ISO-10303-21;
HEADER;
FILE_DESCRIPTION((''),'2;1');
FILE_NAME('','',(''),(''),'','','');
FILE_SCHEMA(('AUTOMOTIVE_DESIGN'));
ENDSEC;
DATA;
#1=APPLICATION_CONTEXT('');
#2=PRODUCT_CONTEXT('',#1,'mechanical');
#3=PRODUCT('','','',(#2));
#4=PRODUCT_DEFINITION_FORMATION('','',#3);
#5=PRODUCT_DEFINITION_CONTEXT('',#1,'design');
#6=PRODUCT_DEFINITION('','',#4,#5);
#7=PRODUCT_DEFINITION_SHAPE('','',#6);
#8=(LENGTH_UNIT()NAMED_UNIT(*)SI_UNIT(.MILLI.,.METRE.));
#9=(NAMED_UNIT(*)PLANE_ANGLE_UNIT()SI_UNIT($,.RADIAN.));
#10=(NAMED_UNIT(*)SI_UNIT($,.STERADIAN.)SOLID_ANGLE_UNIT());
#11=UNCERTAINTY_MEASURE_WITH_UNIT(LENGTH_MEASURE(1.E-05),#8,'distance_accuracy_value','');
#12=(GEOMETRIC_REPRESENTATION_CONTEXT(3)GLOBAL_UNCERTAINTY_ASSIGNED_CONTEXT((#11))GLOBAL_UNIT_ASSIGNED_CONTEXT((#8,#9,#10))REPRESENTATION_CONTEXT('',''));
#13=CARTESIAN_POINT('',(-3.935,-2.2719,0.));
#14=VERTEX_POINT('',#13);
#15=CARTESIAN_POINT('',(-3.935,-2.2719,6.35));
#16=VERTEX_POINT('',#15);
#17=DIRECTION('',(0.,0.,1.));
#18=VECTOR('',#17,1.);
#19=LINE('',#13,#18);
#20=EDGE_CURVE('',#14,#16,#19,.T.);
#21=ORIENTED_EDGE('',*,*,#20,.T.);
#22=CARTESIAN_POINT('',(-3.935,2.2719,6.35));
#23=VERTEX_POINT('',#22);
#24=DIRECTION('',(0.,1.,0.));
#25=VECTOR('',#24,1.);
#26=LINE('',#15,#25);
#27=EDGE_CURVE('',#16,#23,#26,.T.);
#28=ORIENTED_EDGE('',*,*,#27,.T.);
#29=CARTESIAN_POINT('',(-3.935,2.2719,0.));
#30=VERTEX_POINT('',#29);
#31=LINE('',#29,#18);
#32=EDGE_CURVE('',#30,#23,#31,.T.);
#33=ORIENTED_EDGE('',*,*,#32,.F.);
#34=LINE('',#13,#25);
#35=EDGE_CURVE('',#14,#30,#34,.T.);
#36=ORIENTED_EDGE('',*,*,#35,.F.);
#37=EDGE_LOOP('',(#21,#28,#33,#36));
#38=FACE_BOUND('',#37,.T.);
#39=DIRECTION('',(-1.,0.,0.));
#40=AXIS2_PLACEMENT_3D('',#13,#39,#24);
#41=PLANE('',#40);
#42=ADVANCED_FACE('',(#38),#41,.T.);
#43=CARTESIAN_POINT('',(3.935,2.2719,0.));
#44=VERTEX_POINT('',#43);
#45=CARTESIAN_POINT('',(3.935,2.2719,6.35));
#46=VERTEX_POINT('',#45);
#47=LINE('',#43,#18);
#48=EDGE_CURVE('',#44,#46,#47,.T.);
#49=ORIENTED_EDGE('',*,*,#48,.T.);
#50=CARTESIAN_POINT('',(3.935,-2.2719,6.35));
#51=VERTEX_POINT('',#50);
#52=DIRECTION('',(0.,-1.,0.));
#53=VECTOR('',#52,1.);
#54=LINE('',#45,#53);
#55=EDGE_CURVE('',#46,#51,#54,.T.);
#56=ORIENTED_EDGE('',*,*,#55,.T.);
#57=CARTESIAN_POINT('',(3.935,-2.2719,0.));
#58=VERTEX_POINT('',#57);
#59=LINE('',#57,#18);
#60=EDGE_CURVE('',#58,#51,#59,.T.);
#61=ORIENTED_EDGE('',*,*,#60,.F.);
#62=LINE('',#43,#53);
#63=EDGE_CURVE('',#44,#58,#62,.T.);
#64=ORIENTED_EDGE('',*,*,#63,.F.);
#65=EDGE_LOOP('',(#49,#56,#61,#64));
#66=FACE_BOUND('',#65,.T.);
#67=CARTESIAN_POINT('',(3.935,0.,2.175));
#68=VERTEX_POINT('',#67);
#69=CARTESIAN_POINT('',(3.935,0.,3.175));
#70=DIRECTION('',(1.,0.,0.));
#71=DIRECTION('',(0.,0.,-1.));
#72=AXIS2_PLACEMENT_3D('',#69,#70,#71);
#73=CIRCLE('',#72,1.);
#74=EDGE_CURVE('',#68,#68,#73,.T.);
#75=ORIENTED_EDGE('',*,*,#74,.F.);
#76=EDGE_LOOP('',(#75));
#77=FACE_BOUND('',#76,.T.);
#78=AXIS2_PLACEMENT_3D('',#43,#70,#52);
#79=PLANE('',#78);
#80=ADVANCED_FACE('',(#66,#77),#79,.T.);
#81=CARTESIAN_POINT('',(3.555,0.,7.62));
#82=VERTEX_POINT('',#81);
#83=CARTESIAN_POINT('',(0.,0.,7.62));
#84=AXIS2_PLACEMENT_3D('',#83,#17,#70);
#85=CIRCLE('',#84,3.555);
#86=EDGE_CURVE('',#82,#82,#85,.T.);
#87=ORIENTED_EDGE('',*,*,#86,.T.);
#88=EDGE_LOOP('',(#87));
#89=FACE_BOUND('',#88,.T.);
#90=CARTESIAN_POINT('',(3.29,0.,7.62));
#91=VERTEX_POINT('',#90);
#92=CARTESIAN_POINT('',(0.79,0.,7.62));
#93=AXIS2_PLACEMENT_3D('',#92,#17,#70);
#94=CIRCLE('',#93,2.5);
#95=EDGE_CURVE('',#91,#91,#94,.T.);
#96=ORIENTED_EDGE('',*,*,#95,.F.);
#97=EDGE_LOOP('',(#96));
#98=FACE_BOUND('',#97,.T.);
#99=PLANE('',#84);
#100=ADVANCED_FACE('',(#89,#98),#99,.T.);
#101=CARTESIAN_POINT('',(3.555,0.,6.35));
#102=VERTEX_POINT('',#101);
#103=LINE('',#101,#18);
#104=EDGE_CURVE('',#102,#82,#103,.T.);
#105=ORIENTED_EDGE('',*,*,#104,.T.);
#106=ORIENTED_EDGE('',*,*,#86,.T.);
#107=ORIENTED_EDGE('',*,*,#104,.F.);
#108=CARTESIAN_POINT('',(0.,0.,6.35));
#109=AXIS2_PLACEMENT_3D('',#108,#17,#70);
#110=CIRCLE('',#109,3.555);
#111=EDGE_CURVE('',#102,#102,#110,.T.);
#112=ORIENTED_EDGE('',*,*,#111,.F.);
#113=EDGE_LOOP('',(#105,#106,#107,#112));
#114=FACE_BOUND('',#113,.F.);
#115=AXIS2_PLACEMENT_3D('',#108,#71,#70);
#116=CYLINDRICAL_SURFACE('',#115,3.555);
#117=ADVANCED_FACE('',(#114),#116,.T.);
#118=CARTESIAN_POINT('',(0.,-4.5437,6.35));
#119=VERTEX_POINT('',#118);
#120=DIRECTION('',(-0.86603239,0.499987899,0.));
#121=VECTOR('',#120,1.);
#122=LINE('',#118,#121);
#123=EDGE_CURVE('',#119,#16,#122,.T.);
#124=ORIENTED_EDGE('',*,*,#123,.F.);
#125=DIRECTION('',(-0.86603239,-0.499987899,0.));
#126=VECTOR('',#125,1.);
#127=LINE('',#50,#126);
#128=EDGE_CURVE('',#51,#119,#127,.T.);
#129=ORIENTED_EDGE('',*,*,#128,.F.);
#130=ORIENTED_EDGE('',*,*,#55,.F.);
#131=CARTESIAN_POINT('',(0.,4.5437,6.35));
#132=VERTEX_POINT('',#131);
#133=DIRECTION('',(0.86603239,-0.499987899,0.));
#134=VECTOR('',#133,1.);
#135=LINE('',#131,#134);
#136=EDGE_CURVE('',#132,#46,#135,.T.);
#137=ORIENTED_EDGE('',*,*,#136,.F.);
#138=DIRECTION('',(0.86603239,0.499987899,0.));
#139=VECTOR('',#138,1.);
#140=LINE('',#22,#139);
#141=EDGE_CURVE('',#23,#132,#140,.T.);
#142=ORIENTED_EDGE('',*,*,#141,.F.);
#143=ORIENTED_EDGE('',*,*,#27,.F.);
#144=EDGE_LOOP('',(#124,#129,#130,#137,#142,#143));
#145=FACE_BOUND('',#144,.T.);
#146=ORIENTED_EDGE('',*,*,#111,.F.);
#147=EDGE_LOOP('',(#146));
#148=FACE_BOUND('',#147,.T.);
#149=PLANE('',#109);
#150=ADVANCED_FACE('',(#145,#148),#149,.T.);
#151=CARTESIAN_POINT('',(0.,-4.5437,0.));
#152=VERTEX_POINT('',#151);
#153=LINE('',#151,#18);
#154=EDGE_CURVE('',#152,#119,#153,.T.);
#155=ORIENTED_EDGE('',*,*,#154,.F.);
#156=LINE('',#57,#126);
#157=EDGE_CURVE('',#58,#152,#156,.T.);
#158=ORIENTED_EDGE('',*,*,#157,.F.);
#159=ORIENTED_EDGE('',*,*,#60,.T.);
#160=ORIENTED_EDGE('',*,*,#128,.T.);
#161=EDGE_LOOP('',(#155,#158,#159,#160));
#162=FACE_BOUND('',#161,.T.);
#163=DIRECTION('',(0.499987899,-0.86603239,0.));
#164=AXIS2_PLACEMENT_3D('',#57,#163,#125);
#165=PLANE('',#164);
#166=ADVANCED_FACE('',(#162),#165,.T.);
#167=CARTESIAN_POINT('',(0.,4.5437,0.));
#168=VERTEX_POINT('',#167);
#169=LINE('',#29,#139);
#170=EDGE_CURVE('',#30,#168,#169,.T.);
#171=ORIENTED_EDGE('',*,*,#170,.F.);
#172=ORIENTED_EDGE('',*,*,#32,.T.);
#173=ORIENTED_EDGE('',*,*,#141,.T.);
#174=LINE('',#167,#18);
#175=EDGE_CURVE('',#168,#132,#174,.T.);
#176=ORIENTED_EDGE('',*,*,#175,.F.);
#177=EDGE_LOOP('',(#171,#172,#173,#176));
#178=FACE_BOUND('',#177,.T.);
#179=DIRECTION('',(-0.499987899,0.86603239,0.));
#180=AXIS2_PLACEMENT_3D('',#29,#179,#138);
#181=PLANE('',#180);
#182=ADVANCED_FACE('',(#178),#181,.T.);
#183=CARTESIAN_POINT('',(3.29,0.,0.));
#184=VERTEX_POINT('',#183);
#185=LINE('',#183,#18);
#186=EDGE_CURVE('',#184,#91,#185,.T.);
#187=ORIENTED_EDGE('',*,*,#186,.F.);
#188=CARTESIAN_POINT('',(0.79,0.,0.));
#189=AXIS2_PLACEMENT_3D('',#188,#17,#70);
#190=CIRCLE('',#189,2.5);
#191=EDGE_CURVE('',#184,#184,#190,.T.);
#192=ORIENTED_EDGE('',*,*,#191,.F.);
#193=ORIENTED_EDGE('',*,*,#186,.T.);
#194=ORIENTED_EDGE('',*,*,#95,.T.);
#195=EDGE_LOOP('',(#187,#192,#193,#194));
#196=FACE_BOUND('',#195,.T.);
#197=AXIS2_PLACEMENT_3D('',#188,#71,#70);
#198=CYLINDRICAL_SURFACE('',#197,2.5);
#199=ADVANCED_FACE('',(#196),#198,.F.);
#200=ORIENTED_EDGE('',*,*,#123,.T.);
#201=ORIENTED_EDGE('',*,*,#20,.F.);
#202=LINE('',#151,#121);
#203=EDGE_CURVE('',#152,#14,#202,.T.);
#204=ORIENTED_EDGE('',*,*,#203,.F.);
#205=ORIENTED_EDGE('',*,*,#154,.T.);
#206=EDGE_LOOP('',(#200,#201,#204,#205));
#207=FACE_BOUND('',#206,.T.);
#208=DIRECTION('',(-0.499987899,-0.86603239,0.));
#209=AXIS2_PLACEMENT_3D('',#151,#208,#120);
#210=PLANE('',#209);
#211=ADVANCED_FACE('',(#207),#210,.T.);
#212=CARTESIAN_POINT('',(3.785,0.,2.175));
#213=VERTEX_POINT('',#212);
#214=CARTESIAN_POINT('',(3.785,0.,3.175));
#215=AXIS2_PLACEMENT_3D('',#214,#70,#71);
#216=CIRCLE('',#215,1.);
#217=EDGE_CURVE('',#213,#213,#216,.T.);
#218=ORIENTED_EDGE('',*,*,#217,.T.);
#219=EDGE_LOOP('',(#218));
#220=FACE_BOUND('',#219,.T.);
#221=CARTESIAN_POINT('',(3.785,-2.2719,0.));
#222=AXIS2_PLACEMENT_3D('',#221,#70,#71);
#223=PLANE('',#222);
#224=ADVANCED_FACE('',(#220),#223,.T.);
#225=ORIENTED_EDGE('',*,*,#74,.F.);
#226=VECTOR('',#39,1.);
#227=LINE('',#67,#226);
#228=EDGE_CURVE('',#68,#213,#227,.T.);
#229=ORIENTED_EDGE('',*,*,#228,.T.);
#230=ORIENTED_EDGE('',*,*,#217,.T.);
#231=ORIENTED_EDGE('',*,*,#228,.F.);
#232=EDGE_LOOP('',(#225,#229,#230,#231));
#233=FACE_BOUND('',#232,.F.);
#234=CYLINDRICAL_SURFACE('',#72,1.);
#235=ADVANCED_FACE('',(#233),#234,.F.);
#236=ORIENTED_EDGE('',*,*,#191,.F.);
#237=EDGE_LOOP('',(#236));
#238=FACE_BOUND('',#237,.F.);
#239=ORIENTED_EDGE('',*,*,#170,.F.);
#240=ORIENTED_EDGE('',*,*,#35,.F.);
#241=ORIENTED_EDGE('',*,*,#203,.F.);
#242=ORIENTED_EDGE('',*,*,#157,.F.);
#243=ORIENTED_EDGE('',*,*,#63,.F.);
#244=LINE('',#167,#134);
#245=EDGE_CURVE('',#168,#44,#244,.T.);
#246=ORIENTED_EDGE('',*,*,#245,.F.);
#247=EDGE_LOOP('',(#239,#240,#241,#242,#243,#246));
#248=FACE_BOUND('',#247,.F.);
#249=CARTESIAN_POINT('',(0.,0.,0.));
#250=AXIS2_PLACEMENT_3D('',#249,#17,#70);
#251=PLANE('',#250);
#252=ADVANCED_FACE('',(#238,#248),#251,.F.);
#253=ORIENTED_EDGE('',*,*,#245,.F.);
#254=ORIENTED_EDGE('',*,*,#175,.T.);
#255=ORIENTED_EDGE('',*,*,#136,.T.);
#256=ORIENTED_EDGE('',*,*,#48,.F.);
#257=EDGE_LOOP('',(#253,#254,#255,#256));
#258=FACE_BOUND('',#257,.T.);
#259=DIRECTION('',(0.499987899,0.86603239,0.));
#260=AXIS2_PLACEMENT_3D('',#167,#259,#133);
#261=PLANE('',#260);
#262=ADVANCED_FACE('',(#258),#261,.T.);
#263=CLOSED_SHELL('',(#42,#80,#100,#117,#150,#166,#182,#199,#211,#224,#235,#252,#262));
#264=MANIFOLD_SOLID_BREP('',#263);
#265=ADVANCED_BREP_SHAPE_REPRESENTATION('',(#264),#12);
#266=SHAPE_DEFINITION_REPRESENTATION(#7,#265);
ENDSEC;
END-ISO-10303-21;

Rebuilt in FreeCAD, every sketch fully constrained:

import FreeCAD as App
import Part
import Sketcher
from FreeCAD import Vector
Q = App.Units.Quantity


def add_polygon(sketch, points):
    """Adds a closed chain of lines whose ends are joined by coincident constraints."""
    first, n = sketch.GeometryCount, len(points)
    for a, b in zip(points, points[1:] + points[:1]):
        sketch.addGeometry(Part.LineSegment(App.Vector(*a, 0), App.Vector(*b, 0)), False)
    for i in range(n):
        sketch.addConstraint(Sketcher.Constraint("Coincident", first + i, 2, first + (i + 1) % n, 1))

doc = App.newDocument("Part")
body = doc.addObject("PartDesign::Body", "Body")

# Sketch on XY plane
sketch1 = body.newObject("Sketcher::SketchObject", "Sketch")
sketch1.AttachmentSupport = (doc.getObject("XY_Plane"), [""])
sketch1.MapMode = "FlatFace"
add_polygon(sketch1, [(0, -4.5), (3.9, -2.3), (3.9, 2.3), (0, 4.5), (-3.9, 2.3), (-3.9, -2.3)])  # lines 0-5
sketch1.addGeometry(Part.Circle(Vector(0.8, 0, 0), Vector(0, 0, 1), 2.5), False)  # 6
sketch1.addConstraint([
    Sketcher.Constraint("Vertical", 1),
    Sketcher.Constraint("Vertical", 4),
    Sketcher.Constraint("Symmetric", 0, 2, 3, 2, -1, 1),
    Sketcher.Constraint("Symmetric", 2, 2, 5, 2, -1, 1),
    Sketcher.Constraint("PointOnObject", 6, 3, -1),
    Sketcher.Constraint("PointOnObject", 2, 2, -2),
    Sketcher.Constraint("Parallel", 2, 5),
    Sketcher.Constraint("Horizontal", 1, 2, 3, 2),
    Sketcher.Constraint("Diameter", 6, 5.0),
    Sketcher.Constraint("DistanceX", -1, 1, 6, 3, 0.79),
    Sketcher.Constraint("Angle", 0, Q("29.9992 deg")),
    Sketcher.Constraint("DistanceX", 3, 2, 1, 2, 7.87),
    Sketcher.Constraint("DistanceY", 1, 1, 1, 2, 4.5438),
])
pad1 = body.newObject("PartDesign::Pad", "Pad")
pad1.Profile = sketch1
pad1.Length = 6.35

# Sketch on XY plane
sketch2 = body.newObject("Sketcher::SketchObject", "Sketch001")
sketch2.AttachmentSupport = (doc.getObject("XY_Plane"), [""])
sketch2.MapMode = "FlatFace"
sketch2.AttachmentOffset = App.Placement(Vector(0, 0, 6.35), App.Rotation())
sketch2.addGeometry([
    Part.Circle(Vector(0, 0, 0), Vector(0, 0, 1), 3.6),
    Part.Circle(Vector(0.8, 0, 0), Vector(0, 0, 1), 2.5),
], False)
sketch2.addConstraint([
    Sketcher.Constraint("Coincident", 0, 3, -1, 1),
    Sketcher.Constraint("PointOnObject", 1, 3, -1),
    Sketcher.Constraint("Diameter", 0, 7.11),
    Sketcher.Constraint("Diameter", 1, 5.0),
    Sketcher.Constraint("DistanceX", -1, 1, 1, 3, 0.79),
])
pad2 = body.newObject("PartDesign::Pad", "Pad001")
pad2.Profile = sketch2
pad2.Length = 1.27

# Sketch on YZ plane
sketch3 = body.newObject("Sketcher::SketchObject", "Sketch002")
sketch3.AttachmentSupport = (doc.getObject("YZ_Plane"), [""])
sketch3.MapMode = "FlatFace"
sketch3.AttachmentOffset = App.Placement(Vector(0, 0, 3.935), App.Rotation())
sketch3.addGeometry(Part.Circle(Vector(0, 3.2, 0), Vector(0, 0, 1), 1), False)
sketch3.addConstraint([
    Sketcher.Constraint("PointOnObject", 0, 3, -2),
    Sketcher.Constraint("Diameter", 0, 2.0),
    Sketcher.Constraint("DistanceY", -1, 1, 0, 3, 3.175),
])
pocket1 = body.newObject("PartDesign::Pocket", "Pocket")
pocket1.Profile = sketch3
pocket1.Length = 0.15

doc.recompute()
